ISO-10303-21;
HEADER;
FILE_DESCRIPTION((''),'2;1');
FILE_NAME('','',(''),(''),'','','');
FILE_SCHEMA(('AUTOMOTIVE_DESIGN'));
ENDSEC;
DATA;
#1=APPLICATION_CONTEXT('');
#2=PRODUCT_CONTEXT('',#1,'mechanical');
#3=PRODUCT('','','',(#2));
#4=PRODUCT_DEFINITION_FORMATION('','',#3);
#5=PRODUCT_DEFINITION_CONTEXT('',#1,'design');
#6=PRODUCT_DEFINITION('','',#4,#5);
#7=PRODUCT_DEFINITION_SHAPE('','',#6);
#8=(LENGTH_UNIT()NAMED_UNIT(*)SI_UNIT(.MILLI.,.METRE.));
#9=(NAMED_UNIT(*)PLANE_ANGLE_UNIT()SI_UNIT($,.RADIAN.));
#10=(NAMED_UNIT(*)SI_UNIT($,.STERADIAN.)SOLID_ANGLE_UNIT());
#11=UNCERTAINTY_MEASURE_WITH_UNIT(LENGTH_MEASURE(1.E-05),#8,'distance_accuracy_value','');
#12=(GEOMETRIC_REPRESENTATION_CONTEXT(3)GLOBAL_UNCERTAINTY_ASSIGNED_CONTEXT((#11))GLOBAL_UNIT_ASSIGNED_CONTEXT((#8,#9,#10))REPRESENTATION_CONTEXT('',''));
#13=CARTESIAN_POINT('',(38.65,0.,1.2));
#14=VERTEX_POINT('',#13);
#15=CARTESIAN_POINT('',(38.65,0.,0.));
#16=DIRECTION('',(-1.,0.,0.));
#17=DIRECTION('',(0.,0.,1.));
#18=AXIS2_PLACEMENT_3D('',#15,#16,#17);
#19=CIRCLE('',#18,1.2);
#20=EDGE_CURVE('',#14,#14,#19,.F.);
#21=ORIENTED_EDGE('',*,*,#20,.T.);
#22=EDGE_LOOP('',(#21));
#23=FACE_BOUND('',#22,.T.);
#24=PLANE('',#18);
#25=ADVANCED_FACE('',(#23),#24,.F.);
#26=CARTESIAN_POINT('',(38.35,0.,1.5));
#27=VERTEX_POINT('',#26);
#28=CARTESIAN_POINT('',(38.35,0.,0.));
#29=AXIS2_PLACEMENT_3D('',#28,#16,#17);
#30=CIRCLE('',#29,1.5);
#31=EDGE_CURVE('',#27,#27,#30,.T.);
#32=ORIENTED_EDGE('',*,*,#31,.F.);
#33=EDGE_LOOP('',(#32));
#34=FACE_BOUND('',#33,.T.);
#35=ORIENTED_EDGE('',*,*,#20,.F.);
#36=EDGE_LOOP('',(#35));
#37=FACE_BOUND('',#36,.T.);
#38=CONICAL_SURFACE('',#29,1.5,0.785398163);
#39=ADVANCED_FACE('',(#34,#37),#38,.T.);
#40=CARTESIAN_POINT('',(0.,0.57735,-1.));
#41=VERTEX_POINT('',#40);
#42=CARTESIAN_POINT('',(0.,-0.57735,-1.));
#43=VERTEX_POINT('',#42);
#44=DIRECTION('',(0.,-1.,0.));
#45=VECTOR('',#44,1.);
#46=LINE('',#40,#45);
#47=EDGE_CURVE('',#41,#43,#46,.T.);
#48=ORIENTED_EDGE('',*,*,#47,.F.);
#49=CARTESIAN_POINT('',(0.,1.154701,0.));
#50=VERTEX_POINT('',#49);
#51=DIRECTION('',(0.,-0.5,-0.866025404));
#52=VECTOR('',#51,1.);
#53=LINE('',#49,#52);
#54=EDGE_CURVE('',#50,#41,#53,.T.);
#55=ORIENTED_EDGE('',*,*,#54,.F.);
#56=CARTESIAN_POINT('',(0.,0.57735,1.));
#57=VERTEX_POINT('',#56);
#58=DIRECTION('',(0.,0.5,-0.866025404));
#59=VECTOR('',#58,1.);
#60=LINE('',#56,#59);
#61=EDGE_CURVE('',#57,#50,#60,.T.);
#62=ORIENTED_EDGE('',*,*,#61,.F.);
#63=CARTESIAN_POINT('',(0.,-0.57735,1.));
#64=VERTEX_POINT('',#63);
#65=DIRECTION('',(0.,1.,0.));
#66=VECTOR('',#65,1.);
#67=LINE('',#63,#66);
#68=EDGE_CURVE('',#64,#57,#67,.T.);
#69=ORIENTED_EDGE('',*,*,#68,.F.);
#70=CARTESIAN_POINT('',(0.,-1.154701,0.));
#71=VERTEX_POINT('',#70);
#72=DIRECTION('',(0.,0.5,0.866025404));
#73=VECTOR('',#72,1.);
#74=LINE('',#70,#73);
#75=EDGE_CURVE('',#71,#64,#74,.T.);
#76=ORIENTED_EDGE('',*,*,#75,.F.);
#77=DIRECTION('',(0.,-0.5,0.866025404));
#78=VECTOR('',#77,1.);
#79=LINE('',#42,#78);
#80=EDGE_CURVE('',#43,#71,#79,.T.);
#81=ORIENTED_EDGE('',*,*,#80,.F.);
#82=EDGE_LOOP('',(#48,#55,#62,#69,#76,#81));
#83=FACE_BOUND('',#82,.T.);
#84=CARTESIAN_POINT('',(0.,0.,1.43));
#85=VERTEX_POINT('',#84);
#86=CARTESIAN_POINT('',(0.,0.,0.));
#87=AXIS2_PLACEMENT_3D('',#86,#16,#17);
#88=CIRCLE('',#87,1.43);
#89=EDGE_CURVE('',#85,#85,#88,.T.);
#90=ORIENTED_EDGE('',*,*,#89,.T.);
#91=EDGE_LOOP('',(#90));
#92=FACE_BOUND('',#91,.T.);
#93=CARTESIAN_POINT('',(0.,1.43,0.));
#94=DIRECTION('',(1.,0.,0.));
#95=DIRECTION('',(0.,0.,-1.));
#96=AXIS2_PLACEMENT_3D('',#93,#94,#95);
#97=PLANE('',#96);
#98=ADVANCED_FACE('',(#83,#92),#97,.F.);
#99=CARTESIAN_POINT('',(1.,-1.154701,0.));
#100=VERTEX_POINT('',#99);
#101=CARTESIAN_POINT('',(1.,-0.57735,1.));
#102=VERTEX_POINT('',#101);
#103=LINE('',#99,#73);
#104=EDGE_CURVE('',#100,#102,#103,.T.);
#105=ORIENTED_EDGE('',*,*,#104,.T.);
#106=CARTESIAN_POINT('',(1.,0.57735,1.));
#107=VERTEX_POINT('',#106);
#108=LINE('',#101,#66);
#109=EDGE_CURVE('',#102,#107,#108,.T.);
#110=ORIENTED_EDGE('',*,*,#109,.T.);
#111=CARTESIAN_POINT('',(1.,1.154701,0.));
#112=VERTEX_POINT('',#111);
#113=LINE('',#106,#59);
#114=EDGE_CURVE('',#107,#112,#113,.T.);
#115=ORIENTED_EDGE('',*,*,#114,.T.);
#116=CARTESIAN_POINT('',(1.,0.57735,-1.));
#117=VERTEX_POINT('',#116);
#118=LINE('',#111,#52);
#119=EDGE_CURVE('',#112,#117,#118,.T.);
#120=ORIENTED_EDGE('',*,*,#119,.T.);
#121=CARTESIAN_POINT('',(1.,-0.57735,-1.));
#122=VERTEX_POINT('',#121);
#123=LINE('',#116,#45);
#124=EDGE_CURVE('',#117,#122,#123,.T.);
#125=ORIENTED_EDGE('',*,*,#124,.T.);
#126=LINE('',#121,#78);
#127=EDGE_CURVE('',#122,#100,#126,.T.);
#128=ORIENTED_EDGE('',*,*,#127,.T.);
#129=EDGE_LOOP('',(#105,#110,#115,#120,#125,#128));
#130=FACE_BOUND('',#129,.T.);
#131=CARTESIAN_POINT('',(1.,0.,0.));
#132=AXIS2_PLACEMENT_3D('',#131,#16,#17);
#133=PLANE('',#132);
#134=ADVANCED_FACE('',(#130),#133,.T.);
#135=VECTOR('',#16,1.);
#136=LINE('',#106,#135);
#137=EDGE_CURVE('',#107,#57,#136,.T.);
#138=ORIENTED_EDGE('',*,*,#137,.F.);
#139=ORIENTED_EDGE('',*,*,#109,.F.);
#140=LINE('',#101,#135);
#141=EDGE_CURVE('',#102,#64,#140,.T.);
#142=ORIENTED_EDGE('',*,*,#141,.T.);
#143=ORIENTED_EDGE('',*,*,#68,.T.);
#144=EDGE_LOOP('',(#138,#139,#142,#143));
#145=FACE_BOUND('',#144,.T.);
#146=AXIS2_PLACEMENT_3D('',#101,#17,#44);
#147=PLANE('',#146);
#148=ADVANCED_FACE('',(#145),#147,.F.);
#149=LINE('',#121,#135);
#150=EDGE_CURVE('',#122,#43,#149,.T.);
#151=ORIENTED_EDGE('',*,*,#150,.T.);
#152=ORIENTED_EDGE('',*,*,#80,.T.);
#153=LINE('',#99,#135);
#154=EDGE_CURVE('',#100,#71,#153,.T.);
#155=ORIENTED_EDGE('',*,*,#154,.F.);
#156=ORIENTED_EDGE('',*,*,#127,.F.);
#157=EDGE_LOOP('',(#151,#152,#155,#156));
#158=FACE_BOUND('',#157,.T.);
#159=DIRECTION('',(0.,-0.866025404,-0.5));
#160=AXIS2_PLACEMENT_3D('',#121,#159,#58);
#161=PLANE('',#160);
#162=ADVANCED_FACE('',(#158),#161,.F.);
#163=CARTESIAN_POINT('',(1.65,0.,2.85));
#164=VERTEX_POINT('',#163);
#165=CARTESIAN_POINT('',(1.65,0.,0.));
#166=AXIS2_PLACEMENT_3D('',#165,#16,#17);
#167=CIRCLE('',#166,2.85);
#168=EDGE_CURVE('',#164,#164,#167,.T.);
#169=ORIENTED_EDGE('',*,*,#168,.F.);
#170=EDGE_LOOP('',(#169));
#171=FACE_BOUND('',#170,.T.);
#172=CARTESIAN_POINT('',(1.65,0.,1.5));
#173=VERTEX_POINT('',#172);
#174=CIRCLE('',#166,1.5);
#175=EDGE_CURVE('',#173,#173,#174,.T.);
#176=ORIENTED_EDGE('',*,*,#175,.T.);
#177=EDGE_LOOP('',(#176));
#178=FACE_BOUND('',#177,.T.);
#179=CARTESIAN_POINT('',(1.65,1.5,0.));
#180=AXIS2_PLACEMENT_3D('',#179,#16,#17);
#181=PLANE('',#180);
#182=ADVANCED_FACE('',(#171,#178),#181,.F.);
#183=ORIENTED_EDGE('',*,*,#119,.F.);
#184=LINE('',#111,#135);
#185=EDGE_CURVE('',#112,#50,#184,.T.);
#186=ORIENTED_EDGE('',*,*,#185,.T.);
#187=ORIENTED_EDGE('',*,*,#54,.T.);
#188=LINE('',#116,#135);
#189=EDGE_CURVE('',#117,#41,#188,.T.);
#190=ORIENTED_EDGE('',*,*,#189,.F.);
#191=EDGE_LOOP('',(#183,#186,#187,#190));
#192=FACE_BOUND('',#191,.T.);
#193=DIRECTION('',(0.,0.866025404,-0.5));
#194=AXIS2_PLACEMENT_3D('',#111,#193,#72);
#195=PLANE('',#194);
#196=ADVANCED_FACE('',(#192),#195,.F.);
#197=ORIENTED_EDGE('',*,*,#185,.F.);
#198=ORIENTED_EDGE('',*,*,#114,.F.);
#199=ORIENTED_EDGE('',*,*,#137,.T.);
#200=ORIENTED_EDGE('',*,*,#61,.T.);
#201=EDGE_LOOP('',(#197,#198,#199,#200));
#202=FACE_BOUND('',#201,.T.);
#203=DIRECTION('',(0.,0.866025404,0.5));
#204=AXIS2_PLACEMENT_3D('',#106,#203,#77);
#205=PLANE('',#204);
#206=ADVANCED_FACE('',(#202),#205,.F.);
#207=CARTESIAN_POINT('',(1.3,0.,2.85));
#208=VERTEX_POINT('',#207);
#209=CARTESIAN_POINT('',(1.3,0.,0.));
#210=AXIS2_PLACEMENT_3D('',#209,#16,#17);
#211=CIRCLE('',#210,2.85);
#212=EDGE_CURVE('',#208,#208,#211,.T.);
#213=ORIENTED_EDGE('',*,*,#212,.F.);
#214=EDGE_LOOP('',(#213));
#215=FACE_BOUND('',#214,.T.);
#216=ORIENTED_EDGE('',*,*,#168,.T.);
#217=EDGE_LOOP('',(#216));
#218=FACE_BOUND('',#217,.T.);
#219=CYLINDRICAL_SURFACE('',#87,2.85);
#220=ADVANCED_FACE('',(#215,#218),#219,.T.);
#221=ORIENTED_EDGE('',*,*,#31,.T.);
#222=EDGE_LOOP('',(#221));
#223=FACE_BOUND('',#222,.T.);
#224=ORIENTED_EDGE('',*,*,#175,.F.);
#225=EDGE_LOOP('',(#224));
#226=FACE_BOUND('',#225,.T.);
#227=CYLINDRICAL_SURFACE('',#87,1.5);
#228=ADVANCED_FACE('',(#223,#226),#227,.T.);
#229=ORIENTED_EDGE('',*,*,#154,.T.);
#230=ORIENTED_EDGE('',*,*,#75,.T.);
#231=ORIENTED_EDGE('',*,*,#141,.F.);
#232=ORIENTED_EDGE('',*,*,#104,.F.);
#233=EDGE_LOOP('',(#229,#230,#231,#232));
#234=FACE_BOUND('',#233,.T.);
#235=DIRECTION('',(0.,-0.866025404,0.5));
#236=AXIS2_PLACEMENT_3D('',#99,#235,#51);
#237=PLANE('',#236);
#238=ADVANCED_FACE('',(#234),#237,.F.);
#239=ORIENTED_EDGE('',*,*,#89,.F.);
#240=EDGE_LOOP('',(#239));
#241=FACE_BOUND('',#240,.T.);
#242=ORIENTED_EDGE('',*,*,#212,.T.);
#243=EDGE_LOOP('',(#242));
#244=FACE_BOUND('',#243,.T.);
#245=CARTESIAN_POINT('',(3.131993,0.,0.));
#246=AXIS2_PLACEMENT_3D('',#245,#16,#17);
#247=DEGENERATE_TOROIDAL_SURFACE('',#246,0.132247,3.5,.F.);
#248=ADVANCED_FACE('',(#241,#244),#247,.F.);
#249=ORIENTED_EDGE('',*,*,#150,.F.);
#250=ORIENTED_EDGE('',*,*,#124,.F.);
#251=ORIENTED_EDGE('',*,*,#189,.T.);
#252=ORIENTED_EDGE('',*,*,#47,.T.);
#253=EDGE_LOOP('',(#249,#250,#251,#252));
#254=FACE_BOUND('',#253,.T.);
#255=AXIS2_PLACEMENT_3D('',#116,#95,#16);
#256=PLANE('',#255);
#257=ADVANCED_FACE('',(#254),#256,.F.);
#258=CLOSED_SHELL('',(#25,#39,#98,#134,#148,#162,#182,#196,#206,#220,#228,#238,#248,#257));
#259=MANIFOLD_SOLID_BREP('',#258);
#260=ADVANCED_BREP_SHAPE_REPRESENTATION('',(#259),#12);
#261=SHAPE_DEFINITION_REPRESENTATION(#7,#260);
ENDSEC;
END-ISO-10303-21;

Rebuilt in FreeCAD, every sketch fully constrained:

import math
import FreeCAD as App
import Part
import Sketcher
from FreeCAD import Vector
Q = App.Units.Quantity


def edges_at(feature, points):
    """Names of the edges that pass closest to the given points."""
    edges = feature.Shape.Edges
    near = lambda p: min(range(len(edges)), key=lambda i: edges[i].distToShape(Part.Vertex(*p))[0])
    return sorted({f"Edge{near(p) + 1}" for p in points})

doc = App.newDocument("Part")
body = doc.addObject("PartDesign::Body", "Body")

sketch1 = body.newObject("Sketcher::SketchObject", "Sketch")
sketch1.AttachmentSupport = (doc.getObject("XY_Plane"), [""])
sketch1.MapMode = "FlatFace"
sketch1.addGeometry([
    Part.LineSegment(Vector(0, 1.43, 0), Vector(0, 0, 0)),
    Part.LineSegment(Vector(0, 0, 0), Vector(38.65, 0, 0)),
    Part.LineSegment(Vector(38.65, 0, 0), Vector(38.65, 1.5, 0)),
    Part.LineSegment(Vector(38.65, 1.5, 0), Vector(1.65, 1.5, 0)),
    Part.LineSegment(Vector(1.65, 1.5, 0), Vector(1.65, 2.85, 0)),
    Part.LineSegment(Vector(1.65, 2.85, 0), Vector(1.3, 2.85, 0)),
    Part.ArcOfCircle(Part.Circle(Vector(3.13, -0.13, 0), Vector(0, 0, 1), 3.5), math.radians(122), math.radians(153)),
], False)
sketch1.addConstraint([
    Sketcher.Constraint("Coincident", 0, 2, 1, 1),
    Sketcher.Constraint("Coincident", 1, 2, 2, 1),
    Sketcher.Constraint("Coincident", 2, 2, 3, 1),
    Sketcher.Constraint("Coincident", 3, 2, 4, 1),
    Sketcher.Constraint("Coincident", 4, 2, 5, 1),
    Sketcher.Constraint("Coincident", 5, 2, 6, 1),
    Sketcher.Constraint("Coincident", 6, 2, 0, 1),
    Sketcher.Constraint("Vertical", 0),
    Sketcher.Constraint("Horizontal", 1),
    Sketcher.Constraint("Vertical", 2),
    Sketcher.Constraint("Horizontal", 3),
    Sketcher.Constraint("Vertical", 4),
    Sketcher.Constraint("Horizontal", 5),
    Sketcher.Constraint("Coincident", 0, 2, -1, 1),
    Sketcher.Constraint("Radius", 6, 3.5),
    Sketcher.Constraint("DistanceX", 3, 2, 3, 1, 37.0),
    Sketcher.Constraint("DistanceY", 2, 1, 2, 2, 1.5),
    Sketcher.Constraint("DistanceX", 1, 1, 1, 2, 38.65),
    Sketcher.Constraint("DistanceX", 5, 2, 5, 1, 0.35),
    Sketcher.Constraint("DistanceY", 0, 2, 0, 1, 1.43),
    Sketcher.Constraint("DistanceY", 4, 1, 4, 2, 1.35),
])
revolution = body.newObject("PartDesign::Revolution", "Revolution")
revolution.Profile = sketch1
revolution.ReferenceAxis = (sketch1, ["H_Axis"])
revolution.Angle = 360
doc.recompute()

chamfer = body.newObject("PartDesign::Chamfer", "Chamfer")
chamfer.Base = (revolution, edges_at(revolution, [(38.65, 0, -1.5)]))
chamfer.Size = 0.3

sketch2 = body.newObject("Sketcher::SketchObject", "Sketch001")
sketch2.AttachmentSupport = (doc.getObject("YZ_Plane"), [""])
sketch2.MapMode = "FlatFace"
sketch2.addGeometry([
    Part.LineSegment(Vector(1.2, 0, 0), Vector(0.6, -1, 0)),
    Part.LineSegment(Vector(0.6, -1, 0), Vector(-0.6, -1, 0)),
    Part.LineSegment(Vector(-0.6, -1, 0), Vector(-1.2, 0, 0)),
    Part.LineSegment(Vector(-1.2, 0, 0), Vector(-0.6, 1, 0)),
    Part.LineSegment(Vector(-0.6, 1, 0), Vector(0.6, 1, 0)),
    Part.LineSegment(Vector(0.6, 1, 0), Vector(1.2, 0, 0)),
], False)
sketch2.addConstraint([
    Sketcher.Constraint("Coincident", 0, 2, 1, 1),
    Sketcher.Constraint("Coincident", 1, 2, 2, 1),
    Sketcher.Constraint("Coincident", 2, 2, 3, 1),
    Sketcher.Constraint("Coincident", 3, 2, 4, 1),
    Sketcher.Constraint("Coincident", 4, 2, 5, 1),
    Sketcher.Constraint("Coincident", 5, 2, 0, 1),
    Sketcher.Constraint("Horizontal", 1),
    Sketcher.Constraint("Horizontal", 4),
    Sketcher.Constraint("Symmetric", 0, 2, 3, 2, -1, 1),
    Sketcher.Constraint("Symmetric", 2, 2, 5, 2, -1, 1),
    Sketcher.Constraint("PointOnObject", 2, 2, -1),
    Sketcher.Constraint("Parallel", 2, 5),
    Sketcher.Constraint("Vertical", 1, 2, 3, 2),
    Sketcher.Constraint("Angle", 0, Q("-120 deg")),
    Sketcher.Constraint("DistanceY", 0, 2, -1, 1, 1.0),
    Sketcher.Constraint("DistanceX", 1, 2, 1, 1, 1.154701),
])
pocket1 = body.newObject("PartDesign::Pocket", "Pocket")
pocket1.Profile = sketch2
pocket1.Length = 1
pocket1.Reversed = True

doc.recompute()
